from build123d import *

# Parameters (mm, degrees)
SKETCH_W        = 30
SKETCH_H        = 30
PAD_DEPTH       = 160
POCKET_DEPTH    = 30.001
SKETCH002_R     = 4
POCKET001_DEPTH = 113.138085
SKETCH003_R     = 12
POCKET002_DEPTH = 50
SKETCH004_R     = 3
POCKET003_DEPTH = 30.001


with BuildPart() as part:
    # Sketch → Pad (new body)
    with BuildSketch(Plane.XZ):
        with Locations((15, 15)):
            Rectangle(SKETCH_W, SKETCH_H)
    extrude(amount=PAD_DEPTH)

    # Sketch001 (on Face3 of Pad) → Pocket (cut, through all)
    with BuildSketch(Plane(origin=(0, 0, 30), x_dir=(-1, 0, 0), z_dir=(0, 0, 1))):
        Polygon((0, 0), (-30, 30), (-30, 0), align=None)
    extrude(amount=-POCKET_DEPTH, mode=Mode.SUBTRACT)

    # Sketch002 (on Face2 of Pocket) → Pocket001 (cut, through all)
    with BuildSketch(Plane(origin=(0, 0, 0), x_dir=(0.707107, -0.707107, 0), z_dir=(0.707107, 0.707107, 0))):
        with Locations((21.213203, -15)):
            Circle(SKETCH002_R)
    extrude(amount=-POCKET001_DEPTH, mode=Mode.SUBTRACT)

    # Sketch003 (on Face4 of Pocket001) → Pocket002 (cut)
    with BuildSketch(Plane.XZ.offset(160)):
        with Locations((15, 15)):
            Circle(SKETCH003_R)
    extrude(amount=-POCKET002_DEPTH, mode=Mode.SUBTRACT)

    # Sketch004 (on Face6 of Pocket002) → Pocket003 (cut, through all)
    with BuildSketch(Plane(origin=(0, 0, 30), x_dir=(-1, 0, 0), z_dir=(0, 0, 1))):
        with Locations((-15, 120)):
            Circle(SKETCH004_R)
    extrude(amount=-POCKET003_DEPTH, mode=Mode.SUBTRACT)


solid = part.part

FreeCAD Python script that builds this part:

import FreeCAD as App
import Part
import Sketcher


def add_polygon(sketch, points):
    """Adds a closed chain of lines whose ends are joined by coincident constraints."""
    first, n = sketch.GeometryCount, len(points)
    for a, b in zip(points, points[1:] + points[:1]):
        sketch.addGeometry(Part.LineSegment(App.Vector(*a, 0), App.Vector(*b, 0)), False)
    for i in range(n):
        sketch.addConstraint(Sketcher.Constraint("Coincident", first + i, 2, first + (i + 1) % n, 1))

doc = App.newDocument("Part")
body = doc.addObject("PartDesign::Body", "Body")

# Sketch on XZ plane
sketch1 = doc.addObject("Sketcher::SketchObject", "Sketch")
body.addObject(sketch1)
sketch1.AttachmentSupport = (doc.XZ_Plane, [""])
sketch1.MapMode = "FlatFace"
add_polygon(sketch1, [(0, 30), (0, 0), (30, 0), (30, 30)])  # lines 0-3
sketch1.addConstraint(Sketcher.Constraint("Vertical", 0))
sketch1.addConstraint(Sketcher.Constraint("Horizontal", 1))
sketch1.addConstraint(Sketcher.Constraint("Vertical", 2))
sketch1.addConstraint(Sketcher.Constraint("Horizontal", 3))
sketch1.addConstraint(Sketcher.Constraint("Coincident", 0, 2, -1, 1))
sketch1.addConstraint(Sketcher.Constraint("Equal", 3, 0))
sketch1.addConstraint(Sketcher.Constraint("DistanceX", 1, 1, 1, 2, 30.0))
pad1 = doc.addObject("PartDesign::Pad", "Pad")
body.addObject(pad1)
pad1.Profile = sketch1
pad1.Length = 160

# Sketch on XY plane
sketch2 = doc.addObject("Sketcher::SketchObject", "Sketch001")
body.addObject(sketch2)
sketch2.AttachmentSupport = (doc.XY_Plane, [""])
sketch2.MapMode = "FlatFace"
sketch2.AttachmentOffset = App.Placement(App.Vector(0, 0, 30), App.Rotation())
add_polygon(sketch2, [(0, 0), (30, -30), (30, 0)])  # lines 0-2
sketch2.addConstraint(Sketcher.Constraint("Vertical", 1))
sketch2.addConstraint(Sketcher.Constraint("Horizontal", 2))
sketch2.addConstraint(Sketcher.Constraint("Coincident", 2, 2, -1, 1))
sketch2.addConstraint(Sketcher.Constraint("Equal", 2, 1))
sketch2.addConstraint(Sketcher.Constraint("DistanceX", 2, 2, 2, 1, 30.0))
pocket1 = doc.addObject("PartDesign::Pocket", "Pocket")
body.addObject(pocket1)
pocket1.Profile = sketch2
pocket1.Type = "ThroughAll"

# Sketch on an angled plane
sketch3 = doc.addObject("Sketcher::SketchObject", "Sketch002")
body.addObject(sketch3)
sketch3.Placement = App.Placement(App.Vector(0, 0, 0), App.Rotation(App.Vector(0.707106781, -0.707106781, 0), App.Vector(0, 0, -0.999999999), App.Vector(0.707106781, 0.707106781, 0), "ZXY"))
sketch3.addGeometry(Part.Circle(App.Vector(21.213203, -15, 0), App.Vector(0, 0, 1), 4), False)
sketch3.addConstraint(Sketcher.Constraint("Diameter", 0, 8.0))
sketch3.addConstraint(Sketcher.Constraint("DistanceY", 0, 3, -1, 1, 15.0))
sketch3.addConstraint(Sketcher.Constraint("DistanceX", -1, 1, 0, 3, 21.213203))
pocket2 = doc.addObject("PartDesign::Pocket", "Pocket001")
body.addObject(pocket2)
pocket2.Profile = sketch3
pocket2.Type = "ThroughAll"

# Sketch on XZ plane
sketch4 = doc.addObject("Sketcher::SketchObject", "Sketch003")
body.addObject(sketch4)
sketch4.AttachmentSupport = (doc.XZ_Plane, [""])
sketch4.MapMode = "FlatFace"
sketch4.AttachmentOffset = App.Placement(App.Vector(0, 0, 160), App.Rotation())
sketch4.addGeometry(Part.Circle(App.Vector(15, 15, 0), App.Vector(0, 0, 1), 12), False)
sketch4.addConstraint(Sketcher.Constraint("Diameter", 0, 24.0))
sketch4.addConstraint(Sketcher.Constraint("DistanceX", -1, 1, 0, 3, 15.0))
sketch4.addConstraint(Sketcher.Constraint("DistanceY", -1, 1, 0, 3, 15.0))
pocket3 = doc.addObject("PartDesign::Pocket", "Pocket002")
body.addObject(pocket3)
pocket3.Profile = sketch4
pocket3.Length = 50

# Sketch on XY plane
sketch5 = doc.addObject("Sketcher::SketchObject", "Sketch004")
body.addObject(sketch5)
sketch5.AttachmentSupport = (doc.XY_Plane, [""])
sketch5.MapMode = "FlatFace"
sketch5.AttachmentOffset = App.Placement(App.Vector(0, 0, 30), App.Rotation())
sketch5.addGeometry(Part.Circle(App.Vector(15, -120, 0), App.Vector(0, 0, 1), 3), False)
sketch5.addConstraint(Sketcher.Constraint("Diameter", 0, 6.0))
sketch5.addConstraint(Sketcher.Constraint("DistanceX", -1, 1, 0, 3, 15.0))
sketch5.addConstraint(Sketcher.Constraint("DistanceY", 0, 3, -1, 1, 120.0))
pocket4 = doc.addObject("PartDesign::Pocket", "Pocket003")
body.addObject(pocket4)
pocket4.Profile = sketch5
pocket4.Type = "ThroughAll"

doc.recompute()
